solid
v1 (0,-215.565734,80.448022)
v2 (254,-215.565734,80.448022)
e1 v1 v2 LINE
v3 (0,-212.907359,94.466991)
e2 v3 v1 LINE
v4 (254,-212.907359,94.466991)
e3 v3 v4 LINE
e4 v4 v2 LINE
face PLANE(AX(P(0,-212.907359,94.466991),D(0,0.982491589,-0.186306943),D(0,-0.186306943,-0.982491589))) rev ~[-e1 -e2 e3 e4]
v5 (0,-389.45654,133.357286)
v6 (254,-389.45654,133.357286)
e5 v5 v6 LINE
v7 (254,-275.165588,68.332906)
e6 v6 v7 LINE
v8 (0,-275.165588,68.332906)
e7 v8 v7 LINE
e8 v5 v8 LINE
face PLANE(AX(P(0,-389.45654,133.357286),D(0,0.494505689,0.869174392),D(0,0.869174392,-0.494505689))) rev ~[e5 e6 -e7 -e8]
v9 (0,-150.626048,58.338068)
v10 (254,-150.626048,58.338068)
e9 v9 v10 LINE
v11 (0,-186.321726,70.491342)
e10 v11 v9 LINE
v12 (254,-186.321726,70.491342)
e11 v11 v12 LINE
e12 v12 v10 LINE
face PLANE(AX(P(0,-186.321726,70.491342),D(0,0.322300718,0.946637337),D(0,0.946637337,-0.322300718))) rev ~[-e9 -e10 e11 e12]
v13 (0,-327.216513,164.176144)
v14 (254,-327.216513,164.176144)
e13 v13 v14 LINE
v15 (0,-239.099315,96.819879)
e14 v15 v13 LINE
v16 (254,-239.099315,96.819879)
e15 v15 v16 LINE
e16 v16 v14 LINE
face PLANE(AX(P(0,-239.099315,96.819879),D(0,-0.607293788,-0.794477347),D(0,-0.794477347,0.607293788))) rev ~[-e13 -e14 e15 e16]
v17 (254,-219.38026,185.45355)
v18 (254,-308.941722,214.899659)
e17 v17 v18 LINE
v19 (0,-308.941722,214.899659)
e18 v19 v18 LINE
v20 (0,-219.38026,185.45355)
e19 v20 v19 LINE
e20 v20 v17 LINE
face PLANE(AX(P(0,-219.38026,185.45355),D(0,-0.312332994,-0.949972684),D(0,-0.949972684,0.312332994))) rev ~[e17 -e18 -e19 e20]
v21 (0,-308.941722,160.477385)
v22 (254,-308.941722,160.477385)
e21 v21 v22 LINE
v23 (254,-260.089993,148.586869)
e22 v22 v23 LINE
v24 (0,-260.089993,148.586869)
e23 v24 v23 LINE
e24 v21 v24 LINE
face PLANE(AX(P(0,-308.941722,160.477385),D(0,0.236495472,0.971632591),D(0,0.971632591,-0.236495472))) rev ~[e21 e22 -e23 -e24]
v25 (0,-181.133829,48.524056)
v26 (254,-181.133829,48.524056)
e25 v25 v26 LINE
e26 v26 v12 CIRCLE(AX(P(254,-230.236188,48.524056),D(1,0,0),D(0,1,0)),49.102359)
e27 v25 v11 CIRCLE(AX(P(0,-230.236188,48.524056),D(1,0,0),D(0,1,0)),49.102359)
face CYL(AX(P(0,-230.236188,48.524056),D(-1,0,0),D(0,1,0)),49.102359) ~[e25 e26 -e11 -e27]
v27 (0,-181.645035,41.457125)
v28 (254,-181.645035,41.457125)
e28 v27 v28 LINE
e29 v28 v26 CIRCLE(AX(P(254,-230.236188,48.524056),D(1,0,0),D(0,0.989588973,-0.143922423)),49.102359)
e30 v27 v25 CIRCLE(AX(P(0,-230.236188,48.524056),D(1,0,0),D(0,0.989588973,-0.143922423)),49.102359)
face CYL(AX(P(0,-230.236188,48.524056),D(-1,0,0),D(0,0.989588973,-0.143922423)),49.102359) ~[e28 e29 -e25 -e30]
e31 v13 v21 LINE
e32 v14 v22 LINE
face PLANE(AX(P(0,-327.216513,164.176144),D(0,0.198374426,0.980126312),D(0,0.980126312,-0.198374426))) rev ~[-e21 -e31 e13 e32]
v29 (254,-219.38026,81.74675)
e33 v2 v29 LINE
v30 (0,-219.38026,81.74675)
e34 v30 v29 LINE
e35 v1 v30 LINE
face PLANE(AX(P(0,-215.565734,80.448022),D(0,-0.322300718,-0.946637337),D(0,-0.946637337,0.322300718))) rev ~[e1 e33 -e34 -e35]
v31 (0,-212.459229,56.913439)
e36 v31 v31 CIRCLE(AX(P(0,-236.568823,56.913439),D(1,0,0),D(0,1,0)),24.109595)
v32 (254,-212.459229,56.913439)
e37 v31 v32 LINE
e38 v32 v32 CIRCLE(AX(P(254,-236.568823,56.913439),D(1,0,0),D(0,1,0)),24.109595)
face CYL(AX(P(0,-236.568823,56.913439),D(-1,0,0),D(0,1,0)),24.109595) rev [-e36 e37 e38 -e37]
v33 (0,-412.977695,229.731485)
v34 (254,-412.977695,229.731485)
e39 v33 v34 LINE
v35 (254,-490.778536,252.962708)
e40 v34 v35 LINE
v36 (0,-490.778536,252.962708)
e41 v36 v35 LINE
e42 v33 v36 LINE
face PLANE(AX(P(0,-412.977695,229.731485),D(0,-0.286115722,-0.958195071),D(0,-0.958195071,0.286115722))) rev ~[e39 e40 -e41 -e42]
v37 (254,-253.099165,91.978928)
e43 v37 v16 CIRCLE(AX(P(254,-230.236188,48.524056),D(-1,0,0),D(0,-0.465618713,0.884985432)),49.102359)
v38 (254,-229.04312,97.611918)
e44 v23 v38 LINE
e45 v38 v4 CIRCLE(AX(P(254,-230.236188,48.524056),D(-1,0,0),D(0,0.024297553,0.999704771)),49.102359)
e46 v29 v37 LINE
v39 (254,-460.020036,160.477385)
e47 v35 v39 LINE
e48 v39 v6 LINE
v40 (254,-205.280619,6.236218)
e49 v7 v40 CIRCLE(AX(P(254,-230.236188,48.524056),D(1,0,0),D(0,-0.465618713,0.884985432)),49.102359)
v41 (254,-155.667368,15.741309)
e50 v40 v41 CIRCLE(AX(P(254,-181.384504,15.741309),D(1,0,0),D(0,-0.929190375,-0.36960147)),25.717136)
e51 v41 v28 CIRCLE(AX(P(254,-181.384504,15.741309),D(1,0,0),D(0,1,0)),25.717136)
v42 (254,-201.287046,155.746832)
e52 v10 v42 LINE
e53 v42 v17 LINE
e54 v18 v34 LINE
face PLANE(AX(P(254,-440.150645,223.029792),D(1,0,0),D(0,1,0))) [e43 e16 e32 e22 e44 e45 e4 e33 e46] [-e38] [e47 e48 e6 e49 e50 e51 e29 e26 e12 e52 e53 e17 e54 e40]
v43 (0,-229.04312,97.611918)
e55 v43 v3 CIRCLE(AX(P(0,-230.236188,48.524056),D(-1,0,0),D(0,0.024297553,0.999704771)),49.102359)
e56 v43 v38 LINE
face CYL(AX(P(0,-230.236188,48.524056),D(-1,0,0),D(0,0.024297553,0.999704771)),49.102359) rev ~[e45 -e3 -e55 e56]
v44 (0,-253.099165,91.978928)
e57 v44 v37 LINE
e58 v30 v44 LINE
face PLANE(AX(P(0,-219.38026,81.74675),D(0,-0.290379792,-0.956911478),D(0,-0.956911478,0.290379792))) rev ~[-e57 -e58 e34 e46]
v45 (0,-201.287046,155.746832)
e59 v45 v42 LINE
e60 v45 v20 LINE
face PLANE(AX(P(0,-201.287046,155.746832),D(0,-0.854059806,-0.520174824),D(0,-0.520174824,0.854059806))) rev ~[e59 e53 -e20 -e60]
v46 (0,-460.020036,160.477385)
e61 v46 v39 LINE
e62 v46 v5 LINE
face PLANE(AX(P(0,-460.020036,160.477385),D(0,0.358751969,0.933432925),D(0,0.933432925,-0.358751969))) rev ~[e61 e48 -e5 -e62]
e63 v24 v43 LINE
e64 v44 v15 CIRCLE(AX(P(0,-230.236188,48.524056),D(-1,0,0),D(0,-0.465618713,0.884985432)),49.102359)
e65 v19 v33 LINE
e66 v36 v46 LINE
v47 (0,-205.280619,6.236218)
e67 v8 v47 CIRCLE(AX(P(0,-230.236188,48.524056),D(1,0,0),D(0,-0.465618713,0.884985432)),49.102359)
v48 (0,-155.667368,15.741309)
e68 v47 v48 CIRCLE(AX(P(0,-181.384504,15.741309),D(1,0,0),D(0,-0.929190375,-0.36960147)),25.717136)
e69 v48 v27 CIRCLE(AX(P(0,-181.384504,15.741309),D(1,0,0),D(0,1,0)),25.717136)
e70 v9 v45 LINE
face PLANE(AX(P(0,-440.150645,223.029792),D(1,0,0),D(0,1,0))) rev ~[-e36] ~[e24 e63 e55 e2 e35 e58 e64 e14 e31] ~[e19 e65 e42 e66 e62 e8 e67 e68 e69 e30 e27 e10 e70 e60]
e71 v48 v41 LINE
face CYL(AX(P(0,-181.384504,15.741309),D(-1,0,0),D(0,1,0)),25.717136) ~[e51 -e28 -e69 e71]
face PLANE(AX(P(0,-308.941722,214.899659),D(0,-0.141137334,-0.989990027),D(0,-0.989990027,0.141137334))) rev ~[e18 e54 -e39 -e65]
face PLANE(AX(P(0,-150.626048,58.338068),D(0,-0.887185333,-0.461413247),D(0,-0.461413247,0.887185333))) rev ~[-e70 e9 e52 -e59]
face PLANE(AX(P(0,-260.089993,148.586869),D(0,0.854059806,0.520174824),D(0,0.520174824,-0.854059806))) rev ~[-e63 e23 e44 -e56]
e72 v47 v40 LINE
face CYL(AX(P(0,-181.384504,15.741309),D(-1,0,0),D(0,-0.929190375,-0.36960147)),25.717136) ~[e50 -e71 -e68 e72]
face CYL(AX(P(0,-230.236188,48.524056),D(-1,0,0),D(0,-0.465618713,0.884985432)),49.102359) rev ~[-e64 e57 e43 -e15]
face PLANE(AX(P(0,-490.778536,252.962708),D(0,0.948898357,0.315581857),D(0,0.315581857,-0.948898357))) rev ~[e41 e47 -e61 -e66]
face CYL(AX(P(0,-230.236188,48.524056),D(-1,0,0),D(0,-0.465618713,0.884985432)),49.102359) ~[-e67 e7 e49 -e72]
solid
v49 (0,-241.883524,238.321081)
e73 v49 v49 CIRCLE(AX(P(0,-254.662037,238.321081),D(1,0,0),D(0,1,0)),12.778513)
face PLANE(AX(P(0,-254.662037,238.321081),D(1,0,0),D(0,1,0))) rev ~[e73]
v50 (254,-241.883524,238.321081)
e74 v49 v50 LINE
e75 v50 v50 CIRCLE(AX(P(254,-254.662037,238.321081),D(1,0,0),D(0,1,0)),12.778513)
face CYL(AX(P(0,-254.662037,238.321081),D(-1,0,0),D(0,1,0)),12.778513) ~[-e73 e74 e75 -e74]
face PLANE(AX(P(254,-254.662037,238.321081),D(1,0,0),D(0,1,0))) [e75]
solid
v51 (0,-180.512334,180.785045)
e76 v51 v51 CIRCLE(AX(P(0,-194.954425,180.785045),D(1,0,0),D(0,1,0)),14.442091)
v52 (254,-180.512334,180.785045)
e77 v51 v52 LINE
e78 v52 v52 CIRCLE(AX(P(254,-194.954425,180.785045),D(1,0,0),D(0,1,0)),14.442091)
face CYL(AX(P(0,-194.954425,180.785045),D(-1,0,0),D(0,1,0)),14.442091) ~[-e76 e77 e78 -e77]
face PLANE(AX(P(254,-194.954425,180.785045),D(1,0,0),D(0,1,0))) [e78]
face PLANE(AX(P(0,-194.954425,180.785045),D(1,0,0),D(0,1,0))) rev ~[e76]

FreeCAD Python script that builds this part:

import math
import FreeCAD as App
import Part
import Sketcher
from FreeCAD import Vector
Q = App.Units.Quantity

doc = App.newDocument("Part")
body = doc.addObject("PartDesign::Body", "Body")

sketch1 = body.newObject("Sketcher::SketchObject", "Sketch")
sketch1.AttachmentSupport = (doc.getObject("YZ_Plane"), [""])
sketch1.MapMode = "FlatFace"
sketch1.addGeometry([
    Part.ArcOfCircle(Part.Circle(Vector(-230.2, 48.5, 0), Vector(0, 0, 1), 49.1), math.radians(0), math.radians(27)),
    Part.LineSegment(Vector(-186.3, 70.5, 0), Vector(-150.6, 58.3, 0)),
    Part.LineSegment(Vector(-150.6, 58.3, 0), Vector(-201.3, 155.7, 0)),
    Part.LineSegment(Vector(-201.3, 155.7, 0), Vector(-219.4, 185.5, 0)),
    Part.LineSegment(Vector(-219.4, 185.5, 0), Vector(-308.9, 214.9, 0)),
    Part.LineSegment(Vector(-308.9, 214.9, 0), Vector(-413, 229.7, 0)),
    Part.LineSegment(Vector(-413, 229.7, 0), Vector(-490.8, 253, 0)),
    Part.LineSegment(Vector(-490.8, 253, 0), Vector(-460, 160.5, 0)),
    Part.LineSegment(Vector(-460, 160.5, 0), Vector(-389.5, 133.4, 0)),
    Part.LineSegment(Vector(-389.5, 133.4, 0), Vector(-275.2, 68.3, 0)),
    Part.ArcOfCircle(Part.Circle(Vector(-230.2, 48.5, 0), Vector(0, 0, 1), 49.1), math.radians(156), math.radians(301)),
    Part.ArcOfCircle(Part.Circle(Vector(-181.4, 15.7, 0), Vector(0, 0, 1), 25.7), math.radians(-158), math.radians(0)),
    Part.ArcOfCircle(Part.Circle(Vector(-181.4, 15.7, 0), Vector(0, 0, 1), 25.7), math.radians(0), math.radians(91)),
    Part.ArcOfCircle(Part.Circle(Vector(-230.2, 48.5, 0), Vector(0, 0, 1), 49.1), math.radians(-8.27), math.radians(0)),
    Part.Circle(Vector(-236.6, 56.9, 0), Vector(0, 0, 1), 24.1),
    Part.ArcOfCircle(Part.Circle(Vector(-230.2, 48.5, 0), Vector(0, 0, 1), 49.1), math.radians(69.33), math.radians(88.61)),
    Part.LineSegment(Vector(-212.9, 94.5, 0), Vector(-215.6, 80.4, 0)),
    Part.LineSegment(Vector(-215.6, 80.4, 0), Vector(-219.4, 81.7, 0)),
    Part.LineSegment(Vector(-219.4, 81.7, 0), Vector(-253.1, 92, 0)),
    Part.ArcOfCircle(Part.Circle(Vector(-230.2, 48.5, 0), Vector(0, 0, 1), 49.1), math.radians(100.4), math.radians(117.75)),
    Part.LineSegment(Vector(-239.1, 96.8, 0), Vector(-327.2, 164.2, 0)),
    Part.LineSegment(Vector(-327.2, 164.2, 0), Vector(-308.9, 160.5, 0)),
    Part.LineSegment(Vector(-308.9, 160.5, 0), Vector(-260.1, 148.6, 0)),
    Part.LineSegment(Vector(-260.1, 148.6, 0), Vector(-229, 97.6, 0)),
], False)
sketch1.addConstraint([
    Sketcher.Constraint("Coincident", 0, 2, 1, 1),
    Sketcher.Constraint("Coincident", 1, 2, 2, 1),
    Sketcher.Constraint("Coincident", 2, 2, 3, 1),
    Sketcher.Constraint("Coincident", 3, 2, 4, 1),
    Sketcher.Constraint("Coincident", 4, 2, 5, 1),
    Sketcher.Constraint("Coincident", 5, 2, 6, 1),
    Sketcher.Constraint("Coincident", 6, 2, 7, 1),
    Sketcher.Constraint("Coincident", 7, 2, 8, 1),
    Sketcher.Constraint("Coincident", 8, 2, 9, 1),
    Sketcher.Constraint("Coincident", 9, 2, 10, 1),
    Sketcher.Constraint("Coincident", 10, 2, 11, 1),
    Sketcher.Constraint("Tangent", 11, 2, 12, 1),
    Sketcher.Constraint("Coincident", 12, 2, 13, 1),
    Sketcher.Constraint("Tangent", 13, 2, 0, 1),
    Sketcher.Constraint("Coincident", 15, 1, 16, 1),
    Sketcher.Constraint("Coincident", 16, 2, 17, 1),
    Sketcher.Constraint("Coincident", 17, 2, 18, 1),
    Sketcher.Constraint("Coincident", 18, 2, 19, 2),
    Sketcher.Constraint("Coincident", 19, 1, 20, 1),
    Sketcher.Constraint("Coincident", 20, 2, 21, 1),
    Sketcher.Constraint("Coincident", 21, 2, 22, 1),
    Sketcher.Constraint("Coincident", 22, 2, 23, 1),
    Sketcher.Constraint("Coincident", 23, 2, 15, 2),
    Sketcher.Constraint("Coincident", 10, 3, 0, 3),
    Sketcher.Constraint("Coincident", 15, 3, 0, 3),
    Sketcher.Constraint("Coincident", 19, 3, 0, 3),
    Sketcher.Constraint("Equal", 0, 10),
    Sketcher.Constraint("Equal", 11, 12),
    Sketcher.Constraint("Equal", 10, 13),
    Sketcher.Constraint("Equal", 13, 15),
    Sketcher.Constraint("Equal", 15, 19),
    Sketcher.Constraint("Parallel", 1, 17),
    Sketcher.Constraint("Parallel", 3, 23),
    Sketcher.Constraint("Horizontal", 12, 3, 11, 2),
    Sketcher.Constraint("Horizontal", 19, 3, 13, 2),
    Sketcher.Constraint("Horizontal", 7, 2, 21, 2),
    Sketcher.Constraint("Vertical", 3, 2, 17, 2),
    Sketcher.Constraint("Vertical", 4, 2, 21, 2),
    Sketcher.Constraint("Diameter", 14, Q("48.21919 mm")),
    Sketcher.Constraint("Radius", 0, Q("49.102359 mm")),
    Sketcher.Constraint("Radius", 11, Q("25.717136 mm")),
    Sketcher.Constraint("Distance", 5, Q("105.087901 mm")),
    Sketcher.Constraint("Distance", 6, Q("81.1952 mm")),
    Sketcher.Constraint("DistanceX", 4, 2, 14, 3, Q("72.372898 mm")),
    Sketcher.Constraint("DistanceY", 7, 2, 5, 2, Q("69.2541 mm")),
    Sketcher.Constraint("DistanceX", 6, 2, 7, 2, Q("30.7585 mm")),
    Sketcher.Constraint("DistanceY", 8, 2, 7, 2, Q("27.120098 mm")),
    Sketcher.Constraint("DistanceX", 9, 2, 13, 3, Q("44.929401 mm")),
    Sketcher.Constraint("DistanceX", 17, 2, 15, 1, Q("6.4729 mm")),
    Sketcher.Constraint("Distance", 1, Q("37.70787 mm")),
    Sketcher.Constraint("Distance", 8, Q("75.595678 mm")),
    Sketcher.Constraint("Distance", 20, Q("110.912158 mm")),
    Sketcher.Constraint("Distance", 23, Q("59.685459 mm")),
    Sketcher.Constraint("DistanceY", -1, 1, 11, 3, Q("15.741309 mm")),
    Sketcher.Constraint("DistanceY", -1, 1, 14, 3, Q("56.913439 mm")),
    Sketcher.Constraint("DistanceY", -1, 1, 0, 2, Q("70.491342 mm")),
    Sketcher.Constraint("DistanceX", 1, 2, -1, 1, Q("150.626048 mm")),
    Sketcher.Constraint("DistanceY", -1, 1, 1, 2, Q("58.338068 mm")),
    Sketcher.Constraint("DistanceX", 3, 2, -1, 1, Q("219.38026 mm")),
    Sketcher.Constraint("DistanceY", -1, 1, 3, 2, Q("185.45355 mm")),
    Sketcher.Constraint("DistanceX", 4, 2, -1, 1, Q("308.941722 mm")),
    Sketcher.Constraint("DistanceY", -1, 1, 4, 2, Q("214.899659 mm")),
    Sketcher.Constraint("DistanceY", -1, 1, 6, 2, Q("252.962708 mm")),
    Sketcher.Constraint("DistanceX", 8, 2, -1, 1, Q("389.45654 mm")),
    Sketcher.Constraint("DistanceX", 9, 2, -1, 1, Q("275.165588 mm")),
    Sketcher.Constraint("DistanceX", 10, 2, -1, 1, Q("205.280619 mm")),
    Sketcher.Constraint("DistanceY", -1, 1, 16, 2, Q("80.448022 mm")),
    Sketcher.Constraint("DistanceY", -1, 1, 17, 2, Q("81.74675 mm")),
    Sketcher.Constraint("DistanceY", -1, 1, 19, 1, Q("96.819879 mm")),
    Sketcher.Constraint("DistanceY", -1, 1, 22, 2, Q("148.586869 mm")),
    Sketcher.Constraint("DistanceX", 23, 2, -1, 1, Q("229.04312 mm")),
    Sketcher.Constraint("DistanceX", 2, 2, 0, 2, Q("14.96532 mm")),
    Sketcher.Constraint("DistanceY", 9, 2, 18, 2, Q("23.646021 mm")),
    Sketcher.Constraint("DistanceX", 20, 2, 4, 2, Q("18.274791 mm")),
])
pad1 = body.newObject("PartDesign::Pad", "Pad")
pad1.Profile = sketch1
pad1.Length = Q("10 in")
body2 = doc.addObject("PartDesign::Body", "Body001")

sketch2 = body2.newObject("Sketcher::SketchObject", "Sketch001")
sketch2.AttachmentSupport = (doc.getObject("YZ_Plane001"), [""])
sketch2.MapMode = "FlatFace"
sketch2.addGeometry(Part.Circle(Vector(-255, 238, 0), Vector(0, 0, 1), 13), False)
sketch2.addConstraint([
    Sketcher.Constraint("Diameter", 0, Q("25.557027 mm")),
    Sketcher.Constraint("DistanceY", -1, 1, 0, 3, Q("238.321081 mm")),
    Sketcher.Constraint("DistanceX", 0, 3, -1, 1, Q("254.662037 mm")),
])
pad2 = body2.newObject("PartDesign::Pad", "Pad001")
pad2.Profile = sketch2
pad2.Length = Q("10 in")
body3 = doc.addObject("PartDesign::Body", "Body002")

sketch3 = body3.newObject("Sketcher::SketchObject", "Sketch002")
sketch3.AttachmentSupport = (doc.getObject("YZ_Plane002"), [""])
sketch3.MapMode = "FlatFace"
sketch3.addGeometry(Part.Circle(Vector(-195, 181, 0), Vector(0, 0, 1), 14), False)
sketch3.addConstraint([
    Sketcher.Constraint("Diameter", 0, Q("28.884182 mm")),
    Sketcher.Constraint("DistanceX", 0, 3, -1, 1, Q("194.954425 mm")),
    Sketcher.Constraint("DistanceY", -1, 1, 0, 3, Q("180.785045 mm")),
])
pad3 = body3.newObject("PartDesign::Pad", "Pad002")
pad3.Profile = sketch3
pad3.Length = Q("10 in")

doc.recompute()
